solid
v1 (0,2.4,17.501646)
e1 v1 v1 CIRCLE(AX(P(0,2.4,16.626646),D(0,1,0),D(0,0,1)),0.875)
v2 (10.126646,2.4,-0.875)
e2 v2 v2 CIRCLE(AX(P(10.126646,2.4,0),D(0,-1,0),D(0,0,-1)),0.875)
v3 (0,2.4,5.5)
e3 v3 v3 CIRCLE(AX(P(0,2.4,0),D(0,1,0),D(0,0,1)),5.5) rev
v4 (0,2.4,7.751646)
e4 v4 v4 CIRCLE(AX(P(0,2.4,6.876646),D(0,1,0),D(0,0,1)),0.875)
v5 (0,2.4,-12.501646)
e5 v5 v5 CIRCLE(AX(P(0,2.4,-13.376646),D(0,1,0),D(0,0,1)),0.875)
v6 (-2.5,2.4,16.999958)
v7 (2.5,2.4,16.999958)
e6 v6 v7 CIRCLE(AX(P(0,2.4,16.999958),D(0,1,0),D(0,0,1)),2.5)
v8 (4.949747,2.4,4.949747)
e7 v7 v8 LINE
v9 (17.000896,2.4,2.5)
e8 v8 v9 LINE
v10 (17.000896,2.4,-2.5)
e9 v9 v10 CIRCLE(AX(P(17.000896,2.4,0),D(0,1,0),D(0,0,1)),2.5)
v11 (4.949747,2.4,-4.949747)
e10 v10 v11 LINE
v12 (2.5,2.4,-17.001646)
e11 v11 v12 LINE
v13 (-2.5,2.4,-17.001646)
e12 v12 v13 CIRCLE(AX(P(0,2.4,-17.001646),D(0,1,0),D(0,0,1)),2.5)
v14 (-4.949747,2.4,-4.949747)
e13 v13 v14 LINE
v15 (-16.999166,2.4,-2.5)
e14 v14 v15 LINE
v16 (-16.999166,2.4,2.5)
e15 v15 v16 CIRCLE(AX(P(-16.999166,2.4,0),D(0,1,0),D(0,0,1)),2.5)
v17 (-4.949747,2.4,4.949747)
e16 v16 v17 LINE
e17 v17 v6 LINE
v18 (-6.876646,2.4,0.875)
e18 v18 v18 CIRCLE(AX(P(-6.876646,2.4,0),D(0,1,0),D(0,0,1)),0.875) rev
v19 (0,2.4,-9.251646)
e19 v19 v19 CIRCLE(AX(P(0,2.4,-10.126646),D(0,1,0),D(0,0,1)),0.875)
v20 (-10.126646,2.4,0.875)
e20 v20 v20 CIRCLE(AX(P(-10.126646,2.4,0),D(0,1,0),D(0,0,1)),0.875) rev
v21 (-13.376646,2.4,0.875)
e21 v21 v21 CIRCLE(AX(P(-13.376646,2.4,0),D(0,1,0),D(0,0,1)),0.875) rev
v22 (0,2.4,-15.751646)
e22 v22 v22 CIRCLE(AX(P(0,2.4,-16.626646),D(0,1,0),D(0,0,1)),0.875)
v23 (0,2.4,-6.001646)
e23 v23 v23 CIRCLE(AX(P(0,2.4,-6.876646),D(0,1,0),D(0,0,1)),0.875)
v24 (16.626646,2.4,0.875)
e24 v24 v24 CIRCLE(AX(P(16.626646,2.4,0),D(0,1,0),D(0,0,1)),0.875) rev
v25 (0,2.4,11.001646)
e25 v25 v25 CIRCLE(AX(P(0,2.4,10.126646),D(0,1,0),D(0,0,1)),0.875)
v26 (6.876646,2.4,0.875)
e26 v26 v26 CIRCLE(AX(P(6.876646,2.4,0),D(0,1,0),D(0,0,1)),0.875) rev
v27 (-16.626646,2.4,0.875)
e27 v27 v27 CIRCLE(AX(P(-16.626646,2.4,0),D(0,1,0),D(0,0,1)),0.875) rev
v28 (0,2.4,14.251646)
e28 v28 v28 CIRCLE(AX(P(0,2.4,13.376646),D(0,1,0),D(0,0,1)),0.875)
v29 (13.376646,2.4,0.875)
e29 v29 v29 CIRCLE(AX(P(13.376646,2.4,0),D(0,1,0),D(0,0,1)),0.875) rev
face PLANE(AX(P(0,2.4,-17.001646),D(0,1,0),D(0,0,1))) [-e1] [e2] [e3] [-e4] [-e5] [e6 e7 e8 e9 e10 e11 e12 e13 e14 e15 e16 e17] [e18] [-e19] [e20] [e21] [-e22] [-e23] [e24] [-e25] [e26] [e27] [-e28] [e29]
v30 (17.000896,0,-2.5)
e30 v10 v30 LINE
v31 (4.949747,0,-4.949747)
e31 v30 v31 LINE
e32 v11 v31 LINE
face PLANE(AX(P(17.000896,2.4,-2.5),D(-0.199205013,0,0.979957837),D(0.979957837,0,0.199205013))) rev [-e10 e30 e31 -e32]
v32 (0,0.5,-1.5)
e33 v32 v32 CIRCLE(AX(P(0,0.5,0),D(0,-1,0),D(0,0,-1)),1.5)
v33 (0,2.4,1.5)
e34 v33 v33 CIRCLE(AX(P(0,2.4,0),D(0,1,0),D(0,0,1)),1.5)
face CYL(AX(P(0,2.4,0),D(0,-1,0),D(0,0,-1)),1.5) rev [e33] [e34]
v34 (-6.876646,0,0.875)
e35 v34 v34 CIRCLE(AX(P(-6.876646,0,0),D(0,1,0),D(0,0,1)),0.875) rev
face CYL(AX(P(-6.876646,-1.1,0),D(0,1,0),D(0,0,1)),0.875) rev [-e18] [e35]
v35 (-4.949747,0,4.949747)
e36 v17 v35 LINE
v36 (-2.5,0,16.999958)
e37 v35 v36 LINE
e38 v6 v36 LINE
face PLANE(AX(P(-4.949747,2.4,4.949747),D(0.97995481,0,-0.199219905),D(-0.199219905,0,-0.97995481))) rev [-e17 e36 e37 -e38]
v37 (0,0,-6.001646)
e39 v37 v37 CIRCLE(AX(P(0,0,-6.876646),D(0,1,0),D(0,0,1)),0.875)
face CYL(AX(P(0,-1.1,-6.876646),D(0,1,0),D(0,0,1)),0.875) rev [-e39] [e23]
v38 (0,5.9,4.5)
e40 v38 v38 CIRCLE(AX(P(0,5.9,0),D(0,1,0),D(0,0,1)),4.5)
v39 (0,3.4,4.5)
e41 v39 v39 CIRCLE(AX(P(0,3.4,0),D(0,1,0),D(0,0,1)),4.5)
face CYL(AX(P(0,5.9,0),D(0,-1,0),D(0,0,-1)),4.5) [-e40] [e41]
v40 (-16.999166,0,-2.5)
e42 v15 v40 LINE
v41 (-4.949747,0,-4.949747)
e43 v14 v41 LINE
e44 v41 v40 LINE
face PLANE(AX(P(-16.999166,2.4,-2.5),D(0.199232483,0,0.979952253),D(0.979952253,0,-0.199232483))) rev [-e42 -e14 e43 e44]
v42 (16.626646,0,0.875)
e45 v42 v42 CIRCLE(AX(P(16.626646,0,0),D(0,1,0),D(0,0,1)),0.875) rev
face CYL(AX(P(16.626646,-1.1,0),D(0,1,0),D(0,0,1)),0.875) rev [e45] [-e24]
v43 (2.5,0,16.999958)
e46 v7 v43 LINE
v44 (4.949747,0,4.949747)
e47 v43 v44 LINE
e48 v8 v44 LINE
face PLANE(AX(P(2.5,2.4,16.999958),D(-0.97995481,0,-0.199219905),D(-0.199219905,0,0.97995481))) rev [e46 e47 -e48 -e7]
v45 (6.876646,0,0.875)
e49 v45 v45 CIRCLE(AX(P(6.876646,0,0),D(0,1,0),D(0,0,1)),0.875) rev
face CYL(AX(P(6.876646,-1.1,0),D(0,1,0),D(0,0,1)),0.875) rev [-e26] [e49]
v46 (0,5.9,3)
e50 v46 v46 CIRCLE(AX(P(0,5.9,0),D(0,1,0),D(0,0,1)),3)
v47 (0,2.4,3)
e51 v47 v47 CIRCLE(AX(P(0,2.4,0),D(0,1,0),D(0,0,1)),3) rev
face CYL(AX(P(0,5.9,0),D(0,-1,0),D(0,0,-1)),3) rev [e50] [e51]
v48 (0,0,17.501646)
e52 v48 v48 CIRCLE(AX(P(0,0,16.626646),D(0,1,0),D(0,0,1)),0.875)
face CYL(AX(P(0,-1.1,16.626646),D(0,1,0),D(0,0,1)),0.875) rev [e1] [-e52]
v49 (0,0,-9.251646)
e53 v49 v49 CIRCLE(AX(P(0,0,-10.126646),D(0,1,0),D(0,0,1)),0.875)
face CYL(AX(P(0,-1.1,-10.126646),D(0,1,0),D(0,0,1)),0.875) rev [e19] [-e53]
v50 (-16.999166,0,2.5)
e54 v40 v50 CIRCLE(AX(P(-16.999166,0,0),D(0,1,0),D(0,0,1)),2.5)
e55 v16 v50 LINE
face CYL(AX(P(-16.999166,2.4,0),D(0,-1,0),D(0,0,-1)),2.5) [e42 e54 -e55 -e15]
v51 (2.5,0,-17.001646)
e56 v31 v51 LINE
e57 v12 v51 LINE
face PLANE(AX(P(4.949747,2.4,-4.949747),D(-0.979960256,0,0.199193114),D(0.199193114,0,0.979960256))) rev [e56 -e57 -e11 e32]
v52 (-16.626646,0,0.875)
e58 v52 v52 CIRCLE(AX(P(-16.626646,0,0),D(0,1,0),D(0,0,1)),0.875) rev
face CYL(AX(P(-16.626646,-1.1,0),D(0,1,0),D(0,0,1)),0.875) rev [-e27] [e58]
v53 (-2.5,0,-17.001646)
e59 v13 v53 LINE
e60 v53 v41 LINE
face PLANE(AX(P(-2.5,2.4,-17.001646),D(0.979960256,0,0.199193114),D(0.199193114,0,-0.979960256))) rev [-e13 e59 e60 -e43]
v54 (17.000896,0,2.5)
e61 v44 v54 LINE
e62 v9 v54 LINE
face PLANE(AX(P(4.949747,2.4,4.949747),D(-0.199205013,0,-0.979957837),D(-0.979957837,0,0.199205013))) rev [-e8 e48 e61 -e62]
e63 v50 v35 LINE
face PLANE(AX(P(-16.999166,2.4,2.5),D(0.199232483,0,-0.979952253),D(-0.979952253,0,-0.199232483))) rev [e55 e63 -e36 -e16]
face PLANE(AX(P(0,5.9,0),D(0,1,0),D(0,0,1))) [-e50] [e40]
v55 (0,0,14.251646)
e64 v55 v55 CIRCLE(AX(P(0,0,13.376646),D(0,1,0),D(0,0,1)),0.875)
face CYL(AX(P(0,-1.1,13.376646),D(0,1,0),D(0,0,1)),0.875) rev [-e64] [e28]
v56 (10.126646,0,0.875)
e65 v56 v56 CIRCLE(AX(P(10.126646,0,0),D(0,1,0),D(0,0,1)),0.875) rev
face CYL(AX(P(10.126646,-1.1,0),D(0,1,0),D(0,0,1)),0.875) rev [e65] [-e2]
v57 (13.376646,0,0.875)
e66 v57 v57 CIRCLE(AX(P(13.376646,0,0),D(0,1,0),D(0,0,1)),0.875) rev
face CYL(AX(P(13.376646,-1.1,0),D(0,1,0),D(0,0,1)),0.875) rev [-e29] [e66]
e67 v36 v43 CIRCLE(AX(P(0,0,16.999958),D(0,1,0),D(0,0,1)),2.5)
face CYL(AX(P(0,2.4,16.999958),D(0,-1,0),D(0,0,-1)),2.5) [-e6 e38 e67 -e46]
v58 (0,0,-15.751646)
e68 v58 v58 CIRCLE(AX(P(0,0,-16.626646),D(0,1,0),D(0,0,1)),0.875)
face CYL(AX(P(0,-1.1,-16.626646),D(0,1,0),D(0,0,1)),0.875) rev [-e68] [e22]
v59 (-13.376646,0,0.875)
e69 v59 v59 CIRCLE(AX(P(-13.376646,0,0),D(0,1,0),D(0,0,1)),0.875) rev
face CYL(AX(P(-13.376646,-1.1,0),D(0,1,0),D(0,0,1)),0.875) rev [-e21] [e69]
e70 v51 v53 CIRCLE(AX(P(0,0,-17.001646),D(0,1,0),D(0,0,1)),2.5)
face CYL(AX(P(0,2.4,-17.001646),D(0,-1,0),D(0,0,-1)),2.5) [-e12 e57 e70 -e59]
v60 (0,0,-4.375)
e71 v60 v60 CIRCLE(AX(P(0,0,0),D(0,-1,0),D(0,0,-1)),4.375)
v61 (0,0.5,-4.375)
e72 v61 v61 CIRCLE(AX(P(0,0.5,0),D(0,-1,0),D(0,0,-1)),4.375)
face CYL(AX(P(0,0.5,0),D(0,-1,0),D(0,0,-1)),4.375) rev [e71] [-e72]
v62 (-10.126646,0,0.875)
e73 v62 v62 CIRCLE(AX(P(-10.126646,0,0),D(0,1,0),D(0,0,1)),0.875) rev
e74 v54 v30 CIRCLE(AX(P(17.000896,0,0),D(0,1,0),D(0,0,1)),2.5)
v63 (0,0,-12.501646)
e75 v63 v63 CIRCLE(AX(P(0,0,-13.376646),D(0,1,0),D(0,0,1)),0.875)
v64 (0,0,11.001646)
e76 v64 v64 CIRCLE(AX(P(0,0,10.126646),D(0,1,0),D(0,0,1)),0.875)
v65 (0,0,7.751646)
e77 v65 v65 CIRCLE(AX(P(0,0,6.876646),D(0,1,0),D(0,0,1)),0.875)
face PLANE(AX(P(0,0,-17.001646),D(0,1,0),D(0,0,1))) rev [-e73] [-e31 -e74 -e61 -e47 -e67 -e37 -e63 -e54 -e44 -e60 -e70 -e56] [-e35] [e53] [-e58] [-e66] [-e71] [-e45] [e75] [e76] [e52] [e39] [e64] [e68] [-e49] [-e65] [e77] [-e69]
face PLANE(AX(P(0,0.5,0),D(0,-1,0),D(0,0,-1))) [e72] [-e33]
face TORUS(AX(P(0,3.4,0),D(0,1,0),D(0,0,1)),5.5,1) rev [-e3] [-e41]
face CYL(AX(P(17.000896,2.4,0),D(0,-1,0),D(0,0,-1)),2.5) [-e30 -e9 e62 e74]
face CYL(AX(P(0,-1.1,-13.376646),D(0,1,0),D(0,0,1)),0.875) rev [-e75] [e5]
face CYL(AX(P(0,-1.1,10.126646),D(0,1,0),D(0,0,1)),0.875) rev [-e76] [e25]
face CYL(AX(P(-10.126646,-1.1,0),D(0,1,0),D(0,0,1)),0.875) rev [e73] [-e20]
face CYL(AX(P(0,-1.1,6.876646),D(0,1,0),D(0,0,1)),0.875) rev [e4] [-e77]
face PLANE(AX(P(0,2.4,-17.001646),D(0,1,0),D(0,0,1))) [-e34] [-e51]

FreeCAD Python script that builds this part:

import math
import FreeCAD as App
import Part
import Sketcher

V = App.Vector
Q = App.Units.Quantity


def edges_at(feature, points):
    """Names of the edges that pass closest to the given points."""
    edges = feature.Shape.Edges
    near = lambda p: min(range(len(edges)), key=lambda i: edges[i].distToShape(Part.Vertex(*p))[0])
    return sorted({f"Edge{near(p) + 1}" for p in points})

doc = App.newDocument("Part")
body = doc.addObject("PartDesign::Body", "Body")

sketch1 = doc.addObject("Sketcher::SketchObject", "Sketch")
body.addObject(sketch1)
sketch1.AttachmentSupport = (doc.XZ_Plane, [""])
sketch1.MapMode = "FlatFace"
sketch1.addGeometry(Part.LineSegment(V(-4.9, -4.9, 0), V(-17, -2.5, 0)), False)
sketch1.addGeometry(Part.ArcOfCircle(Part.Circle(V(-17, 0, 0), V(0, 0, 1), 2.5), math.radians(90), math.radians(270)), False)
sketch1.addGeometry(Part.LineSegment(V(-17, 2.5, 0), V(-4.9, 4.9, 0)), False)
sketch1.addGeometry(Part.LineSegment(V(-4.9, 4.9, 0), V(-2.5, 17, 0)), False)
sketch1.addGeometry(Part.ArcOfCircle(Part.Circle(V(0, 17, 0), V(0, 0, 1), 2.5), math.radians(0), math.radians(180)), False)
sketch1.addGeometry(Part.LineSegment(V(2.5, 17, 0), V(4.9, 4.9, 0)), False)
sketch1.addGeometry(Part.LineSegment(V(4.9, 4.9, 0), V(17, 2.5, 0)), False)
sketch1.addGeometry(Part.ArcOfCircle(Part.Circle(V(17, 0, 0), V(0, 0, 1), 2.5), math.radians(-90), math.radians(90)), False)
sketch1.addGeometry(Part.LineSegment(V(17, -2.5, 0), V(4.9, -4.9, 0)), False)
sketch1.addGeometry(Part.LineSegment(V(4.9, -4.9, 0), V(2.5, -17, 0)), False)
sketch1.addGeometry(Part.ArcOfCircle(Part.Circle(V(0, -17, 0), V(0, 0, 1), 2.5), math.radians(180), math.radians(360)), False)
sketch1.addGeometry(Part.LineSegment(V(-2.5, -17, 0), V(-4.9, -4.9, 0)), False)
sketch1.addGeometry(Part.Circle(V(0, 0, 0), V(0, 0, 1), 1.5), False)
sketch1.addConstraint(Sketcher.Constraint("Coincident", 0, 2, 1, 2))
sketch1.addConstraint(Sketcher.Constraint("Coincident", 1, 1, 2, 1))
sketch1.addConstraint(Sketcher.Constraint("Coincident", 2, 2, 3, 1))
sketch1.addConstraint(Sketcher.Constraint("Coincident", 3, 2, 4, 2))
sketch1.addConstraint(Sketcher.Constraint("Coincident", 4, 1, 5, 1))
sketch1.addConstraint(Sketcher.Constraint("Coincident", 5, 2, 6, 1))
sketch1.addConstraint(Sketcher.Constraint("Coincident", 6, 2, 7, 2))
sketch1.addConstraint(Sketcher.Constraint("Coincident", 7, 1, 8, 1))
sketch1.addConstraint(Sketcher.Constraint("Coincident", 8, 2, 9, 1))
sketch1.addConstraint(Sketcher.Constraint("Coincident", 9, 2, 10, 2))
sketch1.addConstraint(Sketcher.Constraint("Coincident", 10, 1, 11, 1))
sketch1.addConstraint(Sketcher.Constraint("Coincident", 11, 2, 0, 1))
sketch1.addConstraint(Sketcher.Constraint("Coincident", 12, 3, -1, 1))
sketch1.addConstraint(Sketcher.Constraint("Equal", 1, 4))
sketch1.addConstraint(Sketcher.Constraint("Equal", 4, 7))
sketch1.addConstraint(Sketcher.Constraint("Equal", 7, 10))
sketch1.addConstraint(Sketcher.Constraint("Symmetric", 2, 2, 8, 2, -1, 1))
sketch1.addConstraint(Sketcher.Constraint("Symmetric", 5, 2, 11, 2, -1, 1))
sketch1.addConstraint(Sketcher.Constraint("Symmetric", 3, 2, 4, 1, -2))
sketch1.addConstraint(Sketcher.Constraint("Symmetric", 2, 2, 5, 2, -2))
sketch1.addConstraint(Sketcher.Constraint("Symmetric", 9, 2, 10, 1, -2))
sketch1.addConstraint(Sketcher.Constraint("Symmetric", 0, 2, 1, 1, -1))
sketch1.addConstraint(Sketcher.Constraint("Symmetric", 6, 2, 7, 1, -1))
sketch1.addConstraint(Sketcher.Constraint("Horizontal", 4, 3, 3, 2))
sketch1.addConstraint(Sketcher.Constraint("Horizontal", 10, 3, 9, 2))
sketch1.addConstraint(Sketcher.Constraint("Vertical", 1, 3, 0, 2))
sketch1.addConstraint(Sketcher.Constraint("Vertical", 7, 3, 6, 2))
sketch1.addConstraint(Sketcher.Constraint("Diameter", 12, Q("3 mm")))
sketch1.addConstraint(Sketcher.Constraint("Radius", 1, Q("2.5 mm")))
sketch1.addConstraint(Sketcher.Constraint("Distance", 3, Q("12.2967 mm")))
sketch1.addConstraint(Sketcher.Constraint("DistanceY", 10, 3, 8, 2, Q("12.051898 mm")))
sketch1.addConstraint(Sketcher.Constraint("Distance", 6, Q("12.29762 mm")))
sketch1.addConstraint(Sketcher.Constraint("DistanceY", -1, 1, 4, 3, Q("16.999958 mm")))
sketch1.addConstraint(Sketcher.Constraint("DistanceX", 1, 1, 2, 2, Q("12.049418 mm")))
sketch1.addConstraint(Sketcher.Constraint("DistanceY", 2, 2, 4, 3, Q("12.050211 mm")))
pad1 = doc.addObject("PartDesign::Pad", "Pad")
body.addObject(pad1)
pad1.Profile = sketch1
pad1.Length = 2.4
pad1.Reversed = True

sketch2 = doc.addObject("Sketcher::SketchObject", "Sketch001")
body.addObject(sketch2)
sketch2.AttachmentSupport = (doc.XZ_Plane, [""])
sketch2.MapMode = "FlatFace"
sketch2.AttachmentOffset = App.Placement(V(0, 0, -2.4), App.Rotation())
sketch2.addGeometry(Part.Circle(V(0, 0, 0), V(0, 0, 1), 4.5), False)
sketch2.addGeometry(Part.Circle(V(0, 0, 0), V(0, 0, 1), 3), False)
sketch2.addConstraint(Sketcher.Constraint("Coincident", 0, 3, -1, 1))
sketch2.addConstraint(Sketcher.Constraint("Coincident", 1, 3, -1, 1))
sketch2.addConstraint(Sketcher.Constraint("Diameter", 0, Q("9 mm")))
sketch2.addConstraint(Sketcher.Constraint("Diameter", 1, Q("6 mm")))
pad2 = doc.addObject("PartDesign::Pad", "Pad001")
body.addObject(pad2)
pad2.Profile = sketch2
pad2.Length = 3.5
pad2.Reversed = True
doc.recompute()

fillet = doc.addObject("PartDesign::Fillet", "Fillet")
body.addObject(fillet)
fillet.Base = (pad2, edges_at(pad2, [(-4.5, 2.4, 0)]))
fillet.Radius = 1

sketch3 = doc.addObject("Sketcher::SketchObject", "Sketch002")
body.addObject(sketch3)
sketch3.AttachmentSupport = (doc.XZ_Plane, [""])
sketch3.MapMode = "FlatFace"
sketch3.AttachmentOffset = App.Placement(V(0, 0, -2.4), App.Rotation())
sketch3.addGeometry(Part.Circle(V(0, 16.6, 0), V(0, 0, 1), 0.9), False)
sketch3.addGeometry(Part.Circle(V(0, 13.4, 0), V(0, 0, 1), 0.9), False)
sketch3.addGeometry(Part.Circle(V(0, 10.1, 0), V(0, 0, 1), 0.9), False)
sketch3.addGeometry(Part.Circle(V(0, 6.9, 0), V(0, 0, 1), 0.9), False)
sketch3.addGeometry(Part.Circle(V(-6.9, 0, 0), V(0, 0, 1), 0.9), False)
sketch3.addGeometry(Part.Circle(V(-10.1, 0, 0), V(0, 0, 1), 0.9), False)
sketch3.addGeometry(Part.Circle(V(-13.4, 0, 0), V(0, 0, 1), 0.9), False)
sketch3.addGeometry(Part.Circle(V(-16.6, 0, 0), V(0, 0, 1), 0.9), False)
sketch3.addGeometry(Part.Circle(V(0, -6.9, 0), V(0, 0, 1), 0.9), False)
sketch3.addGeometry(Part.ArcOfCircle(Part.Circle(V(0, -10.1, 0), V(0, 0, 1), 0.9), math.radians(-90), math.radians(0)), False)
sketch3.addGeometry(Part.ArcOfCircle(Part.Circle(V(0, -10.1, 0), V(0, 0, 1), 0.9), math.radians(90), math.radians(270)), False)
sketch3.addGeometry(Part.ArcOfCircle(Part.Circle(V(0, -10.1, 0), V(0, 0, 1), 0.9), math.radians(0), math.radians(90)), False)
sketch3.addGeometry(Part.ArcOfCircle(Part.Circle(V(0, -13.4, 0), V(0, 0, 1), 0.9), math.radians(-90), math.radians(0)), False)
sketch3.addGeometry(Part.ArcOfCircle(Part.Circle(V(0, -13.4, 0), V(0, 0, 1), 0.9), math.radians(90), math.radians(270)), False)
sketch3.addGeometry(Part.ArcOfCircle(Part.Circle(V(0, -13.4, 0), V(0, 0, 1), 0.9), math.radians(0), math.radians(90)), False)
sketch3.addGeometry(Part.ArcOfCircle(Part.Circle(V(0, -16.6, 0), V(0, 0, 1), 0.9), math.radians(90), math.radians(270)), False)
sketch3.addGeometry(Part.ArcOfCircle(Part.Circle(V(0, -16.6, 0), V(0, 0, 1), 0.9), math.radians(0), math.radians(90)), False)
sketch3.addGeometry(Part.ArcOfCircle(Part.Circle(V(0, -16.6, 0), V(0, 0, 1), 0.9), math.radians(-90), math.radians(0)), False)
sketch3.addGeometry(Part.Circle(V(6.9, 0, 0), V(0, 0, 1), 0.9), False)
sketch3.addGeometry(Part.Circle(V(13.4, 0, 0), V(0, 0, 1), 0.9), False)
sketch3.addGeometry(Part.Circle(V(16.6, 0, 0), V(0, 0, 1), 0.9), False)
sketch3.addGeometry(Part.Circle(V(10.1, 0, 0), V(0, 0, 1), 0.9), False)
sketch3.addConstraint(Sketcher.Constraint("Tangent", 9, 1, 10, 2))
sketch3.addConstraint(Sketcher.Constraint("Tangent", 10, 1, 11, 2))
sketch3.addConstraint(Sketcher.Constraint("Tangent", 11, 1, 9, 2))
sketch3.addConstraint(Sketcher.Constraint("Tangent", 12, 1, 13, 2))
sketch3.addConstraint(Sketcher.Constraint("Tangent", 13, 1, 14, 2))
sketch3.addConstraint(Sketcher.Constraint("Tangent", 14, 1, 12, 2))
sketch3.addConstraint(Sketcher.Constraint("Tangent", 15, 1, 16, 2))
sketch3.addConstraint(Sketcher.Constraint("Tangent", 16, 1, 17, 2))
sketch3.addConstraint(Sketcher.Constraint("Tangent", 17, 1, 15, 2))
sketch3.addConstraint(Sketcher.Constraint("Equal", 0, 1))
sketch3.addConstraint(Sketcher.Constraint("Equal", 1, 2))
sketch3.addConstraint(Sketcher.Constraint("Equal", 2, 3))
sketch3.addConstraint(Sketcher.Constraint("Equal", 3, 4))
sketch3.addConstraint(Sketcher.Constraint("Equal", 4, 5))
sketch3.addConstraint(Sketcher.Constraint("Equal", 5, 6))
sketch3.addConstraint(Sketcher.Constraint("Equal", 6, 7))
sketch3.addConstraint(Sketcher.Constraint("Equal", 7, 8))
sketch3.addConstraint(Sketcher.Constraint("Equal", 8, 9))
sketch3.addConstraint(Sketcher.Constraint("Equal", 11, 12))
sketch3.addConstraint(Sketcher.Constraint("Equal", 14, 15))
sketch3.addConstraint(Sketcher.Constraint("Equal", 17, 18))
sketch3.addConstraint(Sketcher.Constraint("Equal", 18, 19))
sketch3.addConstraint(Sketcher.Constraint("Equal", 19, 20))
sketch3.addConstraint(Sketcher.Constraint("Equal", 20, 21))
sketch3.addConstraint(Sketcher.Constraint("Symmetric", 3, 3, 8, 3, -1, 1))
sketch3.addConstraint(Sketcher.Constraint("Symmetric", 2, 3, 9, 3, -1, 1))
sketch3.addConstraint(Sketcher.Constraint("Symmetric", 1, 3, 12, 3, -1, 1))
sketch3.addConstraint(Sketcher.Constraint("Symmetric", 0, 3, 15, 3, -1, 1))
sketch3.addConstraint(Sketcher.Constraint("Symmetric", 4, 3, 18, 3, -1, 1))
sketch3.addConstraint(Sketcher.Constraint("Symmetric", 6, 3, 19, 3, -1, 1))
sketch3.addConstraint(Sketcher.Constraint("Symmetric", 7, 3, 20, 3, -1, 1))
sketch3.addConstraint(Sketcher.Constraint("Symmetric", 5, 3, 21, 3, -1, 1))
sketch3.addConstraint(Sketcher.Constraint("PointOnObject", 0, 3, -2))
sketch3.addConstraint(Sketcher.Constraint("PointOnObject", 1, 3, -2))
sketch3.addConstraint(Sketcher.Constraint("PointOnObject", 2, 3, -2))
sketch3.addConstraint(Sketcher.Constraint("PointOnObject", 3, 3, -2))
sketch3.addConstraint(Sketcher.Constraint("PointOnObject", 4, 3, -1))
sketch3.addConstraint(Sketcher.Constraint("PointOnObject", 5, 3, -1))
sketch3.addConstraint(Sketcher.Constraint("PointOnObject", 6, 3, -1))
sketch3.addConstraint(Sketcher.Constraint("PointOnObject", 7, 3, -1))
sketch3.addConstraint(Sketcher.Constraint("PointOnObject", 9, 1, -2))
sketch3.addConstraint(Sketcher.Constraint("PointOnObject", 10, 1, -2))
sketch3.addConstraint(Sketcher.Constraint("PointOnObject", 12, 1, -2))
sketch3.addConstraint(Sketcher.Constraint("PointOnObject", 13, 1, -2))
sketch3.addConstraint(Sketcher.Constraint("PointOnObject", 15, 1, -2))
sketch3.addConstraint(Sketcher.Constraint("PointOnObject", 17, 1, -2))
sketch3.addConstraint(Sketcher.Constraint("Horizontal", 10, 3, 11, 1))
sketch3.addConstraint(Sketcher.Constraint("Horizontal", 13, 3, 14, 1))
sketch3.addConstraint(Sketcher.Constraint("Horizontal", 17, 3, 16, 1))
sketch3.addConstraint(Sketcher.Constraint("Diameter", 0, Q("1.75 mm")))
sketch3.addConstraint(Sketcher.Constraint("DistanceY", 2, 3, 0, 3, Q("6.5 mm")))
sketch3.addConstraint(Sketcher.Constraint("DistanceY", 3, 3, 1, 3, Q("6.5 mm")))
sketch3.addConstraint(Sketcher.Constraint("DistanceX", 6, 3, 4, 3, Q("6.5 mm")))
sketch3.addConstraint(Sketcher.Constraint("DistanceX", 7, 3, 5, 3, Q("6.5 mm")))
sketch3.addConstraint(Sketcher.Constraint("DistanceY", 13, 1, 9, 1, Q("1.5 mm")))
sketch3.addConstraint(Sketcher.Constraint("DistanceX", 5, 3, 4, 3, Q("3.25 mm")))
sketch3.addConstraint(Sketcher.Constraint("DistanceY", 8, 3, 3, 3, Q("13.753292 mm")))
sketch3.addConstraint(Sketcher.Constraint("DistanceX", 4, 3, -1, 1, Q("6.876646 mm")))
pocket1 = doc.addObject("PartDesign::Pocket", "Pocket")
body.addObject(pocket1)
pocket1.Profile = sketch3
pocket1.Length = 3.5
pocket1.Reversed = True

sketch4 = doc.addObject("Sketcher::SketchObject", "Sketch003")
body.addObject(sketch4)
sketch4.AttachmentSupport = (doc.XZ_Plane, [""])
sketch4.MapMode = "FlatFace"
sketch4.addGeometry(Part.Circle(V(0, 0, 0), V(0, 0, 1), 4.4), False)
sketch4.addConstraint(Sketcher.Constraint("Coincident", 0, 3, -1, 1))
sketch4.addConstraint(Sketcher.Constraint("Diameter", 0, Q("8.75 mm")))
pocket2 = doc.addObject("PartDesign::Pocket", "Pocket001")
body.addObject(pocket2)
pocket2.Profile = sketch4
pocket2.Length = 0.5

doc.recompute()
